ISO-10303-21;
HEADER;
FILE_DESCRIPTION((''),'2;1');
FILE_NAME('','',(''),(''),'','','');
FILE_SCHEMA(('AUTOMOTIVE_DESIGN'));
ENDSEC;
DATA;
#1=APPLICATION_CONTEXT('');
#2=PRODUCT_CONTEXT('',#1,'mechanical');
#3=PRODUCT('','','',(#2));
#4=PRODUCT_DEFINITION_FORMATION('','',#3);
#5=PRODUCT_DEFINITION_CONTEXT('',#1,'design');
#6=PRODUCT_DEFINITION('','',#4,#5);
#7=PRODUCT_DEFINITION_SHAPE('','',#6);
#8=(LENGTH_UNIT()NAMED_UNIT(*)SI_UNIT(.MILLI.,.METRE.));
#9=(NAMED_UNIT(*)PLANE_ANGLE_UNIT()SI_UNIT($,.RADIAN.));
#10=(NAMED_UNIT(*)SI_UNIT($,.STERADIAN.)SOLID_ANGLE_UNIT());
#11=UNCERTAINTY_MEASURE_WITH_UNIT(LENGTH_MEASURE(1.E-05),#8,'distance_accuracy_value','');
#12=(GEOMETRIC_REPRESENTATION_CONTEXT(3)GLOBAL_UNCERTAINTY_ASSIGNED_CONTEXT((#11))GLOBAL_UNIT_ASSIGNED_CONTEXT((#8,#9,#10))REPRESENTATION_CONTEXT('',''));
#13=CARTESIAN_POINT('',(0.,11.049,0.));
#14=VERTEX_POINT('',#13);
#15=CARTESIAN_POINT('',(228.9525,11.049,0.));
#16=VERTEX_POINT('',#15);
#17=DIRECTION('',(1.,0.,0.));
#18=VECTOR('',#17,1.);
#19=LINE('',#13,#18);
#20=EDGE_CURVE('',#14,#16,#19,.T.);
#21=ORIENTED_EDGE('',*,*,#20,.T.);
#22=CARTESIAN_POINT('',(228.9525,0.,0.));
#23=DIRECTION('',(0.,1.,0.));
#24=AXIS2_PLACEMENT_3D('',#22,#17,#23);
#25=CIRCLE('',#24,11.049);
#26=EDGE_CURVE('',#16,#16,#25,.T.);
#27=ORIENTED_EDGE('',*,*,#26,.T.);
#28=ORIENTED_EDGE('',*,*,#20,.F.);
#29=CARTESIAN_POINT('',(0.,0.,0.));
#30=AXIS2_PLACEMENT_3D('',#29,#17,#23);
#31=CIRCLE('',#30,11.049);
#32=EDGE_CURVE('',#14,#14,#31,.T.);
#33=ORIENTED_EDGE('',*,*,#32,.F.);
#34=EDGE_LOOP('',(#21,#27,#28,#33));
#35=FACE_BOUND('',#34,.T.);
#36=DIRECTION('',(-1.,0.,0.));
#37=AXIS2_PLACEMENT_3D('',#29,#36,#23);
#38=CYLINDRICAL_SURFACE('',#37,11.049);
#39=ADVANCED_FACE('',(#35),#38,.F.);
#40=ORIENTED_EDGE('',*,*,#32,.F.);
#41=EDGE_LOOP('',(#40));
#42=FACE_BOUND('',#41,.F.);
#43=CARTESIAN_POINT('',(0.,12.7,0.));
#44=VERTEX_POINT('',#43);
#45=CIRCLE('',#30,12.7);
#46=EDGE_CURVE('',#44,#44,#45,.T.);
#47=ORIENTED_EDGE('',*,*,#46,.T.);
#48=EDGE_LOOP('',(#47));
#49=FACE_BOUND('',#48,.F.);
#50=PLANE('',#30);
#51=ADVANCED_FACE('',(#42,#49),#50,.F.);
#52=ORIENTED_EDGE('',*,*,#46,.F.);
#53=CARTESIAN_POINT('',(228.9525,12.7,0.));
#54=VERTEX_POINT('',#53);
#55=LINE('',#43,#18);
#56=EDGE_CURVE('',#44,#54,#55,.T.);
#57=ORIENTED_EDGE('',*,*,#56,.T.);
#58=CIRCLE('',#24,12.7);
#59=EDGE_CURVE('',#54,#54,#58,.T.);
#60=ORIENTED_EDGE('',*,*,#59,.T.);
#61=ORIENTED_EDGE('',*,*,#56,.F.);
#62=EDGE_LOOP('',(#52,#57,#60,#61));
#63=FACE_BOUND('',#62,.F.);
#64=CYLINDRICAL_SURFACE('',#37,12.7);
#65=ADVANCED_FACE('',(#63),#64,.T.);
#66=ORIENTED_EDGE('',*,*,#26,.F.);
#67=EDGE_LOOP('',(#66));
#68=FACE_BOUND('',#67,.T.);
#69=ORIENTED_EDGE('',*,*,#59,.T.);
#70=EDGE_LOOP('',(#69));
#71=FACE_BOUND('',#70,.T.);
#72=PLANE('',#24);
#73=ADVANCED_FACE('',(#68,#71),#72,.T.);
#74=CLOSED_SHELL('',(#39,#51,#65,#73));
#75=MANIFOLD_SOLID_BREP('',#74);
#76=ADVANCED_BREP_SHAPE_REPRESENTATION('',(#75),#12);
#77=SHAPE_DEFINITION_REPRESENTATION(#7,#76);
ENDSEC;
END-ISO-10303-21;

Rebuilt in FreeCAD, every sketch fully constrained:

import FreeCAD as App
import Part
import Sketcher
Q = App.Units.Quantity

doc = App.newDocument("Part")
body = doc.addObject("PartDesign::Body", "Body")

# Sketch on YZ plane
sketch1 = body.newObject("Sketcher::SketchObject", "Sketch")
sketch1.AttachmentSupport = (doc.getObject("YZ_Plane"), [""])
sketch1.MapMode = "FlatFace"
sketch1.addGeometry(Part.Circle(App.Vector(0, 0, 0), App.Vector(0, 0, 1), 12.7), False)
sketch1.addGeometry(Part.Circle(App.Vector(0, 0, 0), App.Vector(0, 0, 1), 11.049), False)
sketch1.addConstraint(Sketcher.Constraint("Coincident", 0, 3, -1, 1))
sketch1.addConstraint(Sketcher.Constraint("Coincident", 1, 3, -1, 1))
sketch1.addConstraint(Sketcher.Constraint("Diameter", 0, Q("1 in")))
sketch1.addConstraint(Sketcher.Constraint("Diameter", 1, Q("0.87 in")))
pad1 = body.newObject("PartDesign::Pad", "Pad")
pad1.Profile = sketch1
pad1.Length = 228.9525

doc.recompute()
